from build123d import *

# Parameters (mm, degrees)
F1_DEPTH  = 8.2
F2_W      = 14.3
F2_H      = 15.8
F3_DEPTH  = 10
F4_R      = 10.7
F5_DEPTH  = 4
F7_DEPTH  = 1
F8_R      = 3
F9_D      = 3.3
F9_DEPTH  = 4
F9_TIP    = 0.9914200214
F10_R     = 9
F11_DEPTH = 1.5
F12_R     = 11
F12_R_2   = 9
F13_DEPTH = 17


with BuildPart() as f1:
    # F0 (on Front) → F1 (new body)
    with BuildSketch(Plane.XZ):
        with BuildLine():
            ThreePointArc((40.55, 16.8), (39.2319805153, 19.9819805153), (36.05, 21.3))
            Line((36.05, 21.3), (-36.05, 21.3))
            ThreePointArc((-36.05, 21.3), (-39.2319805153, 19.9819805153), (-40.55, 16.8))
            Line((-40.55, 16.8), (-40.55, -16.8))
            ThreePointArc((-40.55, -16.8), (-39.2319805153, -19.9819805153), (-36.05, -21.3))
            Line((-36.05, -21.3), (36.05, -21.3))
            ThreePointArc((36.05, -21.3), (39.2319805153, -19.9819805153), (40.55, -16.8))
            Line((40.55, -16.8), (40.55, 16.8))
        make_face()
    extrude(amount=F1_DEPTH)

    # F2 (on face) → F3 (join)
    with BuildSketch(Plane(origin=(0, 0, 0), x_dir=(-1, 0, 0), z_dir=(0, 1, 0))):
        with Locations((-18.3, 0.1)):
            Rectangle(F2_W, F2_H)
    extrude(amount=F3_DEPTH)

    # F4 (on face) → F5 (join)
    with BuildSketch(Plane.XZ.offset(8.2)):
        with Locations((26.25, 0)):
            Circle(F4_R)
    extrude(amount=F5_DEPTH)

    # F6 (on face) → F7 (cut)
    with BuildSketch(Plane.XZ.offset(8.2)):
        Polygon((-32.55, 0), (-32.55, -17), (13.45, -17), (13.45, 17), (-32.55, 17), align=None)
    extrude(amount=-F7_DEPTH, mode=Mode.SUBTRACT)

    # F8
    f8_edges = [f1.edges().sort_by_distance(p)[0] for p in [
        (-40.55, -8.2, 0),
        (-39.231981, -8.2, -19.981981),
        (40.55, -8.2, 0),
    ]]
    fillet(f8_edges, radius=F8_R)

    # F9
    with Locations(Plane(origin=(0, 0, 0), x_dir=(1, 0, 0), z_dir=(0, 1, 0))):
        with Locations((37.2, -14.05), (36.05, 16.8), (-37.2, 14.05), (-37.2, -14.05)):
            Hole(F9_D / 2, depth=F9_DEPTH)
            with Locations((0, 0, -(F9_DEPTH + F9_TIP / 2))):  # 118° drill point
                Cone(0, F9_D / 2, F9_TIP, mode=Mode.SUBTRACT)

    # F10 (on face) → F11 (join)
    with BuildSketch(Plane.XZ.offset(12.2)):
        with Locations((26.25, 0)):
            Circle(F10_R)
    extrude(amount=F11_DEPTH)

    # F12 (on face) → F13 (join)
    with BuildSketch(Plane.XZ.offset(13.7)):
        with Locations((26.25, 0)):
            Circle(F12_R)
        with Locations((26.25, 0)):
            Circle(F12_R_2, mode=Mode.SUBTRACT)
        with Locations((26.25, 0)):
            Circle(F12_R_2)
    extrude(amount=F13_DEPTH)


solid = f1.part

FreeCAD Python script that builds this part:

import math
import FreeCAD as App
import Part
import Sketcher

V = App.Vector


def edges_at(feature, points):
    """Names of the edges that pass closest to the given points."""
    edges = feature.Shape.Edges
    near = lambda p: min(range(len(edges)), key=lambda i: edges[i].distToShape(Part.Vertex(*p))[0])
    return sorted({f"Edge{near(p) + 1}" for p in points})


def add_polygon(sketch, points):
    """Adds a closed chain of lines whose ends are joined by coincident constraints."""
    first, n = sketch.GeometryCount, len(points)
    for a, b in zip(points, points[1:] + points[:1]):
        sketch.addGeometry(Part.LineSegment(App.Vector(*a, 0), App.Vector(*b, 0)), False)
    for i in range(n):
        sketch.addConstraint(Sketcher.Constraint("Coincident", first + i, 2, first + (i + 1) % n, 1))

doc = App.newDocument("Part")
body = doc.addObject("PartDesign::Body", "Body")

sketch1 = body.newObject("Sketcher::SketchObject", "Sketch")
sketch1.AttachmentSupport = (doc.getObject("XZ_Plane"), [""])
sketch1.MapMode = "FlatFace"
sketch1.addGeometry([
    Part.ArcOfCircle(Part.Circle(V(36.05, 16.8, 0), V(0, 0, 1), 4.5), math.radians(0), math.radians(90)),
    Part.LineSegment(V(36.05, 21.3, 0), V(-36.05, 21.3, 0)),
    Part.ArcOfCircle(Part.Circle(V(-36.05, 16.8, 0), V(0, 0, 1), 4.5), math.radians(90), math.radians(180)),
    Part.LineSegment(V(-40.55, 16.8, 0), V(-40.55, -16.8, 0)),
    Part.ArcOfCircle(Part.Circle(V(-36.05, -16.8, 0), V(0, 0, 1), 4.5), math.radians(180), math.radians(270)),
    Part.LineSegment(V(-36.05, -21.3, 0), V(36.05, -21.3, 0)),
    Part.ArcOfCircle(Part.Circle(V(36.05, -16.8, 0), V(0, 0, 1), 4.5), math.radians(-90), math.radians(0)),
    Part.LineSegment(V(40.55, -16.8, 0), V(40.55, 16.8, 0)),
], False)
sketch1.addConstraint([
    Sketcher.Constraint("Tangent", 0, 2, 1, 1),
    Sketcher.Constraint("Tangent", 1, 2, 2, 1),
    Sketcher.Constraint("Tangent", 2, 2, 3, 1),
    Sketcher.Constraint("Tangent", 3, 2, 4, 1),
    Sketcher.Constraint("Tangent", 4, 2, 5, 1),
    Sketcher.Constraint("Tangent", 5, 2, 6, 1),
    Sketcher.Constraint("Tangent", 6, 2, 7, 1),
    Sketcher.Constraint("Tangent", 7, 2, 0, 1),
    Sketcher.Constraint("Horizontal", 1),
    Sketcher.Constraint("Vertical", 3),
    Sketcher.Constraint("Horizontal", 5),
    Sketcher.Constraint("Vertical", 7),
    Sketcher.Constraint("Equal", 0, 2),
    Sketcher.Constraint("Equal", 2, 4),
    Sketcher.Constraint("Equal", 4, 6),
    Sketcher.Constraint("Symmetric", 0, 3, 4, 3, -1, 1),
    Sketcher.Constraint("Radius", 0, 4.5),
    Sketcher.Constraint("DistanceX", 1, 2, 1, 1, 72.1),
    Sketcher.Constraint("DistanceY", 3, 2, 3, 1, 33.6),
])
pad1 = body.newObject("PartDesign::Pad", "Pad")
pad1.Profile = sketch1
pad1.Length = 8.2

sketch2 = body.newObject("Sketcher::SketchObject", "Sketch001")
sketch2.AttachmentSupport = (doc.getObject("XZ_Plane"), [""])
sketch2.MapMode = "FlatFace"
add_polygon(sketch2, [(25.45, 8), (25.45, -7.8), (11.15, -7.8), (11.15, 8)])
sketch2.addConstraint([
    Sketcher.Constraint("Vertical", 0),
    Sketcher.Constraint("Horizontal", 1),
    Sketcher.Constraint("Vertical", 2),
    Sketcher.Constraint("Horizontal", 3),
    Sketcher.Constraint("DistanceX", 1, 2, 1, 1, 14.3),
    Sketcher.Constraint("DistanceY", 0, 2, 0, 1, 15.8),
    Sketcher.Constraint("DistanceY", -1, 1, 2, 2, 8.0),
    Sketcher.Constraint("DistanceX", -1, 1, 0, 2, 25.45),
])
pad2 = body.newObject("PartDesign::Pad", "Pad001")
pad2.Profile = sketch2
pad2.Length = 10
pad2.Reversed = True

sketch3 = body.newObject("Sketcher::SketchObject", "Sketch002")
sketch3.AttachmentSupport = (doc.getObject("XZ_Plane"), [""])
sketch3.MapMode = "FlatFace"
sketch3.AttachmentOffset = App.Placement(V(0, 0, 8.2), App.Rotation())
sketch3.addGeometry(Part.Circle(V(26.25, 0, 0), V(0, 0, 1), 10.7), False)
sketch3.addConstraint([
    Sketcher.Constraint("PointOnObject", 0, 3, -1),
    Sketcher.Constraint("Diameter", 0, 21.4),
    Sketcher.Constraint("DistanceX", -1, 1, 0, 3, 26.25),
])
pad3 = body.newObject("PartDesign::Pad", "Pad002")
pad3.Profile = sketch3
pad3.Length = 4

sketch4 = body.newObject("Sketcher::SketchObject", "Sketch003")
sketch4.AttachmentSupport = (doc.getObject("XZ_Plane"), [""])
sketch4.MapMode = "FlatFace"
sketch4.AttachmentOffset = App.Placement(V(0, 0, 8.2), App.Rotation())
add_polygon(sketch4, [(-32.55, -17), (13.45, -17), (13.45, 17), (-32.55, 17)])
sketch4.addConstraint([
    Sketcher.Constraint("Horizontal", 0),
    Sketcher.Constraint("Vertical", 1),
    Sketcher.Constraint("Horizontal", 2),
    Sketcher.Constraint("Vertical", 3),
    Sketcher.Constraint("DistanceX", 0, 1, 0, 2, 46.0),
    Sketcher.Constraint("DistanceY", 1, 1, 1, 2, 34.0),
    Sketcher.Constraint("DistanceY", 0, 2, -1, 1, 17.0),
    Sketcher.Constraint("DistanceX", -1, 1, 0, 2, 13.45),
])
pocket1 = body.newObject("PartDesign::Pocket", "Pocket")
pocket1.Profile = sketch4
pocket1.Length = 1
doc.recompute()

fillet = body.newObject("PartDesign::Fillet", "Fillet")
fillet.Base = (pocket1, edges_at(pocket1, [(-40.55, -8.2, 0), (-39.232, -8.2, -19.982), (40.55, -8.2, 0)]))
fillet.Radius = 3

sketch5 = body.newObject("Sketcher::SketchObject", "Sketch004")
sketch5.AttachmentSupport = (doc.getObject("XZ_Plane"), [""])
sketch5.MapMode = "FlatFace"
sketch5.addGeometry([
    Part.Circle(V(37.2, 14.05, 0), V(0, 0, 1), 1.65),
    Part.Circle(V(36.05, -16.8, 0), V(0, 0, 1), 1.65),
    Part.Circle(V(-37.2, -14.05, 0), V(0, 0, 1), 1.65),
    Part.Circle(V(-37.2, 14.05, 0), V(0, 0, 1), 1.65),
], False)
sketch5.addConstraint([
    Sketcher.Constraint("Equal", 0, 1),
    Sketcher.Constraint("Equal", 1, 2),
    Sketcher.Constraint("Equal", 2, 3),
    Sketcher.Constraint("Symmetric", 0, 3, 2, 3, -1, 1),
    Sketcher.Constraint("Symmetric", 0, 3, 3, 3, -2),
    Sketcher.Constraint("Diameter", 0, 3.3),
    Sketcher.Constraint("DistanceX", -1, 1, 0, 3, 37.2),
    Sketcher.Constraint("DistanceY", 1, 3, -1, 1, 16.8),
    Sketcher.Constraint("DistanceY", 2, 3, 0, 3, 28.1),
    Sketcher.Constraint("DistanceX", -1, 1, 1, 3, 36.05),
])
doc.recompute()
hole = body.newObject("PartDesign::Hole", "Hole")
hole.Profile = sketch5
hole.ThreadType = "None"
hole.Diameter = 3.3
hole.DepthType = "Dimension"
hole.Depth = 4
hole.DrillPoint = "Angled"
hole.DrillPointAngle = 118
hole.Reversed = True

sketch6 = body.newObject("Sketcher::SketchObject", "Sketch005")
sketch6.AttachmentSupport = (doc.getObject("XZ_Plane"), [""])
sketch6.MapMode = "FlatFace"
sketch6.AttachmentOffset = App.Placement(V(0, 0, 12.2), App.Rotation())
sketch6.addGeometry(Part.Circle(V(26.25, 0, 0), V(0, 0, 1), 9), False)
sketch6.addConstraint([
    Sketcher.Constraint("PointOnObject", 0, 3, -1),
    Sketcher.Constraint("Diameter", 0, 18.0),
    Sketcher.Constraint("DistanceX", -1, 1, 0, 3, 26.25),
])
pad4 = body.newObject("PartDesign::Pad", "Pad003")
pad4.Profile = sketch6
pad4.Length = 1.5

sketch7 = body.newObject("Sketcher::SketchObject", "Sketch006")
sketch7.AttachmentSupport = (doc.getObject("XZ_Plane"), [""])
sketch7.MapMode = "FlatFace"
sketch7.AttachmentOffset = App.Placement(V(0, 0, 13.7), App.Rotation())
sketch7.addGeometry(Part.Circle(V(26.25, 0, 0), V(0, 0, 1), 11), False)
sketch7.addConstraint([
    Sketcher.Constraint("PointOnObject", 0, 3, -1),
    Sketcher.Constraint("Diameter", 0, 22.0),
    Sketcher.Constraint("DistanceX", -1, 1, 0, 3, 26.25),
])
pad5 = body.newObject("PartDesign::Pad", "Pad004")
pad5.Profile = sketch7
pad5.Length = 17

doc.recompute()
